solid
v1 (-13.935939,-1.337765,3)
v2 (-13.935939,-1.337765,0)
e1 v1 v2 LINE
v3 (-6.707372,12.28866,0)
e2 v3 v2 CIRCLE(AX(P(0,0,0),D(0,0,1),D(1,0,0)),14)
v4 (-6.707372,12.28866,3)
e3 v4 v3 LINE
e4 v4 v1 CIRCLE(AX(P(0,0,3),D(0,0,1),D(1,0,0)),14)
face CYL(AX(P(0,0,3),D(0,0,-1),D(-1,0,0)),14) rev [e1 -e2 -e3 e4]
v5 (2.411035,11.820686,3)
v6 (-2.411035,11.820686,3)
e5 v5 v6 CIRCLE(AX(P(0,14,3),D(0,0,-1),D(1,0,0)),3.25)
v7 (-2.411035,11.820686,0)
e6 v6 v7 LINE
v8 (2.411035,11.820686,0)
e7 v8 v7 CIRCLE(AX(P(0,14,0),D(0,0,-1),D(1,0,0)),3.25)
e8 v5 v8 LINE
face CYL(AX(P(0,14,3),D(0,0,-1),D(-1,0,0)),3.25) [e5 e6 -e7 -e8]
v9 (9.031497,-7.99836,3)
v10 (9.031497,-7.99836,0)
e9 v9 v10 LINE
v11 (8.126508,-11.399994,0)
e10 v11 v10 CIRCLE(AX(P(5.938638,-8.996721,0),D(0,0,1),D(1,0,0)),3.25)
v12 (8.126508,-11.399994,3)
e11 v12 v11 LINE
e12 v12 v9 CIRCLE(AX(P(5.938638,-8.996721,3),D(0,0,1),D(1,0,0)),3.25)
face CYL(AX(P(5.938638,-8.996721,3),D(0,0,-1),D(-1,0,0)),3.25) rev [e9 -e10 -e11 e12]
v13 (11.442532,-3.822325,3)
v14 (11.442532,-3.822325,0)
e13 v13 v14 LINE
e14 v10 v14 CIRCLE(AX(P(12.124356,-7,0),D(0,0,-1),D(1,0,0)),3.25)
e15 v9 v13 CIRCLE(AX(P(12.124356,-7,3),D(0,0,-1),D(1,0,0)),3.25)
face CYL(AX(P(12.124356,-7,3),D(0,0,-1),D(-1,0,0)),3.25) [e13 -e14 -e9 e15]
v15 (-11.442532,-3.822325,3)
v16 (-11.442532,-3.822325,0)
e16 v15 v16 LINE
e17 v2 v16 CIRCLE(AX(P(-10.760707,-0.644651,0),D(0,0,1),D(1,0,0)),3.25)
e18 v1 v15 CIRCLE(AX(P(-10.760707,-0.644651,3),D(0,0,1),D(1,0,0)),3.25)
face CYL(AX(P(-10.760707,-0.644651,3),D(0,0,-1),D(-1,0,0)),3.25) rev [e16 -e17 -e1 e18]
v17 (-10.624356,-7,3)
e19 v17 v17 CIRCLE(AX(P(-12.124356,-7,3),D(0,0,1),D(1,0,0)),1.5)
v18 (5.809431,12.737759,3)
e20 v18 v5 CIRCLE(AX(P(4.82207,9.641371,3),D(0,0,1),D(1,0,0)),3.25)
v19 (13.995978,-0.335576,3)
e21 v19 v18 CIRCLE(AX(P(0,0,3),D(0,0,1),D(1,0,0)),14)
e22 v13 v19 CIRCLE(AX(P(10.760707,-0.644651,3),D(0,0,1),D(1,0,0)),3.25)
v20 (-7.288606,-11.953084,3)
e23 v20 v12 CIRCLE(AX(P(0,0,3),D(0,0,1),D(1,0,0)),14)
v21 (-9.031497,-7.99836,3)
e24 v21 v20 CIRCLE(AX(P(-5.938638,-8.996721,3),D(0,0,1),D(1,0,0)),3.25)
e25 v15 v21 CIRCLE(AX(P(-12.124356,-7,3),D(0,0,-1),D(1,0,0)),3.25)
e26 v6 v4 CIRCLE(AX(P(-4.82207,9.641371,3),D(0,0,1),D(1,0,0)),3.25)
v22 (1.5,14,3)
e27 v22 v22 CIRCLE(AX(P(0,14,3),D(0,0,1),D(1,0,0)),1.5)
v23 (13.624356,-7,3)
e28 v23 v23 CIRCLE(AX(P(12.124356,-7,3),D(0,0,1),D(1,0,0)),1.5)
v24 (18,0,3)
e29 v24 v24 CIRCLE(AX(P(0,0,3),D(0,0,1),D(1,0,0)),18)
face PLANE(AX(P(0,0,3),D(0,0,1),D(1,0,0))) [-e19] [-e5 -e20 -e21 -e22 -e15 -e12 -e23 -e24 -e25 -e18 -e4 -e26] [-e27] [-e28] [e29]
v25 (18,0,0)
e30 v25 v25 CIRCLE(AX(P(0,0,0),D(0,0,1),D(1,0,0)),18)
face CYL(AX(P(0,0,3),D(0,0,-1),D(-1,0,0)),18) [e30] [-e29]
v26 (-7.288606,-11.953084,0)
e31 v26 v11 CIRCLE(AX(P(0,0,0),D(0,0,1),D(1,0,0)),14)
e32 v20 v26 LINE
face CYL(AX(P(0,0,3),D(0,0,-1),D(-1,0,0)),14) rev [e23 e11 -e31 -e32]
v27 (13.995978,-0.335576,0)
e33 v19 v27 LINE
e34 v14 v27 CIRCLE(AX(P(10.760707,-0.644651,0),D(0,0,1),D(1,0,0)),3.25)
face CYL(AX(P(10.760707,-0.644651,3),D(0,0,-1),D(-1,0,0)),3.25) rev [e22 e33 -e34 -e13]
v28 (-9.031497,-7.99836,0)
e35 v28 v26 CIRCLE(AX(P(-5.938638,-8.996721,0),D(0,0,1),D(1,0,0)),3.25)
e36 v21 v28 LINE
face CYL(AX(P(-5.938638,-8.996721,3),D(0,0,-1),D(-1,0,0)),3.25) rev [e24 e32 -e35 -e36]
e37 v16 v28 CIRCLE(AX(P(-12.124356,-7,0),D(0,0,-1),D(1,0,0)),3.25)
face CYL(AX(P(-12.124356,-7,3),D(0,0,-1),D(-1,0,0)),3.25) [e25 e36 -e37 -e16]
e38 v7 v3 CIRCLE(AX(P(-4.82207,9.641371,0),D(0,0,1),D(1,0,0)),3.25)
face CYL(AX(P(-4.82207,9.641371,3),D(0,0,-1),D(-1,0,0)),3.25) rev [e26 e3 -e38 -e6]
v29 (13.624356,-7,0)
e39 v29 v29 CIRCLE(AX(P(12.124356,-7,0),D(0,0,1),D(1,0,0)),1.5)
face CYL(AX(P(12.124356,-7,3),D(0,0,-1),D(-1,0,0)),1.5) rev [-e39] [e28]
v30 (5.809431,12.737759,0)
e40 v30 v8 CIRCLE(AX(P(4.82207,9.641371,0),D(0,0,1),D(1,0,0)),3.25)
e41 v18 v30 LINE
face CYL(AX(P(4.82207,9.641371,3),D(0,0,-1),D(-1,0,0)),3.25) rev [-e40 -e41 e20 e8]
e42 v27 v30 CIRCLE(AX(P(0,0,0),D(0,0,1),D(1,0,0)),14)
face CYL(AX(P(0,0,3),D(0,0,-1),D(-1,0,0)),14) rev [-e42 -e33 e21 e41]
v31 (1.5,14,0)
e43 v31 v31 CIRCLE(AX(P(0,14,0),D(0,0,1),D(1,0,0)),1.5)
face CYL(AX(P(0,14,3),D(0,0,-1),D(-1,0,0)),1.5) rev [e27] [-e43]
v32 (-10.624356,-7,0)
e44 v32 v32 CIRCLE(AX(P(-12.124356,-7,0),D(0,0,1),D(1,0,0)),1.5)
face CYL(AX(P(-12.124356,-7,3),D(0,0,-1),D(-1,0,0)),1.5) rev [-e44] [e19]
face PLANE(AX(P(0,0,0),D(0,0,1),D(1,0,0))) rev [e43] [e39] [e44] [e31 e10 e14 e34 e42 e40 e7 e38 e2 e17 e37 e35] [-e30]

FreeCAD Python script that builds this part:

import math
import FreeCAD as App
import Part
import Sketcher
from FreeCAD import Vector
Q = App.Units.Quantity

doc = App.newDocument("Part")
body = doc.addObject("PartDesign::Body", "Body")

# Sketch on XY plane
sketch1 = body.newObject("Sketcher::SketchObject", "Sketch")
sketch1.AttachmentSupport = (doc.getObject("XY_Plane"), [""])
sketch1.MapMode = "FlatFace"
sketch1.addGeometry([
    Part.Circle(Vector(0, 0, 0), Vector(0, 0, 1), 18),  # 0
    Part.Circle(Vector(-12.124356, -7, 0), Vector(0, 0, 1), 1.5),  # 1
    Part.Circle(Vector(12.124356, -7, 0), Vector(0, 0, 1), 1.5),  # 2
    Part.ArcOfCircle(Part.Circle(Vector(-4.82207, 9.641371, 0), Vector(0, 0, 1), 3.25), math.radians(42.110165), math.radians(125.457073)),  # 3
    Part.ArcOfCircle(Part.Circle(Vector(0, 14, 0), Vector(0, 0, 1), 3.25), math.radians(-137.889835), math.radians(-42.110165)),  # 4
    Part.ArcOfCircle(Part.Circle(Vector(4.82207, 9.641371, 0), Vector(0, 0, 1), 3.25), math.radians(72.313811), math.radians(137.889835)),  # 5
    Part.ArcOfCircle(Part.Circle(Vector(0, 0, 0), Vector(0, 0, 1), 14), math.radians(-1.373495), math.radians(65.483244)),  # 6
    Part.ArcOfCircle(Part.Circle(Vector(10.760707, -0.644651, 0), Vector(0, 0, 1), 3.25), math.radians(-77.889835), math.radians(5.457073)),  # 7
    Part.ArcOfCircle(Part.Circle(Vector(12.124356, -7, 0), Vector(0, 0, 1), 3.25), math.radians(102.110165), math.radians(197.889835)),  # 8
    Part.ArcOfCircle(Part.Circle(Vector(5.938638, -8.996721, 0), Vector(0, 0, 1), 3.25), math.radians(-47.686189), math.radians(17.889835)),  # 9
    Part.ArcOfCircle(Part.Circle(Vector(0, 0, 0), Vector(0, 0, 1), 14), math.radians(-121.373495), math.radians(-54.516757)),  # 10
    Part.ArcOfCircle(Part.Circle(Vector(-5.938638, -8.996721, 0), Vector(0, 0, 1), 3.25), math.radians(162.110165), math.radians(245.457073)),  # 11
    Part.ArcOfCircle(Part.Circle(Vector(-12.124356, -7, 0), Vector(0, 0, 1), 3.25), math.radians(-17.889835), math.radians(77.889835)),  # 12
    Part.ArcOfCircle(Part.Circle(Vector(-10.760707, -0.644651, 0), Vector(0, 0, 1), 3.25), math.radians(-167.686189), math.radians(-102.110165)),  # 13
    Part.ArcOfCircle(Part.Circle(Vector(0, 0, 0), Vector(0, 0, 1), 14), math.radians(118.626505), math.radians(185.483243)),  # 14
    Part.Circle(Vector(0, 14, 0), Vector(0, 0, 1), 1.5),  # 15
], False)
sketch1.addConstraint([
    Sketcher.Constraint("Tangent", 3, 1, 4, 1),
    Sketcher.Constraint("Tangent", 4, 2, 5, 2),
    Sketcher.Constraint("Coincident", 5, 1, 6, 2),
    Sketcher.Constraint("Coincident", 6, 1, 7, 2),
    Sketcher.Constraint("Tangent", 7, 1, 8, 1),
    Sketcher.Constraint("Tangent", 8, 2, 9, 2),
    Sketcher.Constraint("Coincident", 9, 1, 10, 2),
    Sketcher.Constraint("Coincident", 10, 1, 11, 2),
    Sketcher.Constraint("Tangent", 11, 1, 12, 1),
    Sketcher.Constraint("Tangent", 12, 2, 13, 2),
    Sketcher.Constraint("Coincident", 13, 1, 14, 2),
    Sketcher.Constraint("Coincident", 14, 1, 3, 2),
    Sketcher.Constraint("Coincident", 0, 3, -1, 1),
    Sketcher.Constraint("Coincident", 6, 3, -1, 1),
    Sketcher.Constraint("Coincident", 10, 3, -1, 1),
    Sketcher.Constraint("Coincident", 14, 3, -1, 1),
    Sketcher.Constraint("Coincident", 8, 3, 2, 3),
    Sketcher.Constraint("Coincident", 12, 3, 1, 3),
    Sketcher.Constraint("Coincident", 15, 3, 4, 3),
    Sketcher.Constraint("Equal", 1, 2),
    Sketcher.Constraint("Equal", 3, 4),
    Sketcher.Constraint("Equal", 4, 5),
    Sketcher.Constraint("Equal", 5, 7),
    Sketcher.Constraint("Equal", 7, 8),
    Sketcher.Constraint("Equal", 8, 9),
    Sketcher.Constraint("Equal", 6, 10),
    Sketcher.Constraint("Equal", 9, 11),
    Sketcher.Constraint("Equal", 11, 12),
    Sketcher.Constraint("Equal", 12, 13),
    Sketcher.Constraint("Equal", 10, 14),
    Sketcher.Constraint("Equal", 2, 15),
    Sketcher.Constraint("Symmetric", 1, 3, 2, 3, -2),
    Sketcher.Constraint("Symmetric", 3, 3, 5, 3, -2),
    Sketcher.Constraint("Horizontal", 9, 3, 11, 3),
    Sketcher.Constraint("Horizontal", 7, 3, 13, 3),
    Sketcher.Constraint("Diameter", 0, Q("36 mm")),
    Sketcher.Constraint("Diameter", 1, Q("3 mm")),
    Sketcher.Constraint("Radius", 6, Q("14 mm")),
    Sketcher.Constraint("Radius", 3, Q("3.25 mm")),
    Sketcher.Constraint("DistanceY", 1, 3, -1, 1, Q("7 mm")),
    Sketcher.Constraint("DistanceY", -1, 1, 4, 3, Q("14 mm")),
    Sketcher.Constraint("DistanceX", 13, 3, 10, 1, Q("3.472101 mm")),
    Sketcher.Constraint("DistanceX", 14, 1, 3, 3, Q("1.885302 mm")),
    Sketcher.Constraint("DistanceY", 7, 3, -1, 1, Q("0.644651 mm")),
    Sketcher.Constraint("DistanceY", 9, 3, -1, 1, Q("8.996721 mm")),
])
pad1 = body.newObject("PartDesign::Pad", "Pad")
pad1.Profile = sketch1
pad1.Length = 3

doc.recompute()
